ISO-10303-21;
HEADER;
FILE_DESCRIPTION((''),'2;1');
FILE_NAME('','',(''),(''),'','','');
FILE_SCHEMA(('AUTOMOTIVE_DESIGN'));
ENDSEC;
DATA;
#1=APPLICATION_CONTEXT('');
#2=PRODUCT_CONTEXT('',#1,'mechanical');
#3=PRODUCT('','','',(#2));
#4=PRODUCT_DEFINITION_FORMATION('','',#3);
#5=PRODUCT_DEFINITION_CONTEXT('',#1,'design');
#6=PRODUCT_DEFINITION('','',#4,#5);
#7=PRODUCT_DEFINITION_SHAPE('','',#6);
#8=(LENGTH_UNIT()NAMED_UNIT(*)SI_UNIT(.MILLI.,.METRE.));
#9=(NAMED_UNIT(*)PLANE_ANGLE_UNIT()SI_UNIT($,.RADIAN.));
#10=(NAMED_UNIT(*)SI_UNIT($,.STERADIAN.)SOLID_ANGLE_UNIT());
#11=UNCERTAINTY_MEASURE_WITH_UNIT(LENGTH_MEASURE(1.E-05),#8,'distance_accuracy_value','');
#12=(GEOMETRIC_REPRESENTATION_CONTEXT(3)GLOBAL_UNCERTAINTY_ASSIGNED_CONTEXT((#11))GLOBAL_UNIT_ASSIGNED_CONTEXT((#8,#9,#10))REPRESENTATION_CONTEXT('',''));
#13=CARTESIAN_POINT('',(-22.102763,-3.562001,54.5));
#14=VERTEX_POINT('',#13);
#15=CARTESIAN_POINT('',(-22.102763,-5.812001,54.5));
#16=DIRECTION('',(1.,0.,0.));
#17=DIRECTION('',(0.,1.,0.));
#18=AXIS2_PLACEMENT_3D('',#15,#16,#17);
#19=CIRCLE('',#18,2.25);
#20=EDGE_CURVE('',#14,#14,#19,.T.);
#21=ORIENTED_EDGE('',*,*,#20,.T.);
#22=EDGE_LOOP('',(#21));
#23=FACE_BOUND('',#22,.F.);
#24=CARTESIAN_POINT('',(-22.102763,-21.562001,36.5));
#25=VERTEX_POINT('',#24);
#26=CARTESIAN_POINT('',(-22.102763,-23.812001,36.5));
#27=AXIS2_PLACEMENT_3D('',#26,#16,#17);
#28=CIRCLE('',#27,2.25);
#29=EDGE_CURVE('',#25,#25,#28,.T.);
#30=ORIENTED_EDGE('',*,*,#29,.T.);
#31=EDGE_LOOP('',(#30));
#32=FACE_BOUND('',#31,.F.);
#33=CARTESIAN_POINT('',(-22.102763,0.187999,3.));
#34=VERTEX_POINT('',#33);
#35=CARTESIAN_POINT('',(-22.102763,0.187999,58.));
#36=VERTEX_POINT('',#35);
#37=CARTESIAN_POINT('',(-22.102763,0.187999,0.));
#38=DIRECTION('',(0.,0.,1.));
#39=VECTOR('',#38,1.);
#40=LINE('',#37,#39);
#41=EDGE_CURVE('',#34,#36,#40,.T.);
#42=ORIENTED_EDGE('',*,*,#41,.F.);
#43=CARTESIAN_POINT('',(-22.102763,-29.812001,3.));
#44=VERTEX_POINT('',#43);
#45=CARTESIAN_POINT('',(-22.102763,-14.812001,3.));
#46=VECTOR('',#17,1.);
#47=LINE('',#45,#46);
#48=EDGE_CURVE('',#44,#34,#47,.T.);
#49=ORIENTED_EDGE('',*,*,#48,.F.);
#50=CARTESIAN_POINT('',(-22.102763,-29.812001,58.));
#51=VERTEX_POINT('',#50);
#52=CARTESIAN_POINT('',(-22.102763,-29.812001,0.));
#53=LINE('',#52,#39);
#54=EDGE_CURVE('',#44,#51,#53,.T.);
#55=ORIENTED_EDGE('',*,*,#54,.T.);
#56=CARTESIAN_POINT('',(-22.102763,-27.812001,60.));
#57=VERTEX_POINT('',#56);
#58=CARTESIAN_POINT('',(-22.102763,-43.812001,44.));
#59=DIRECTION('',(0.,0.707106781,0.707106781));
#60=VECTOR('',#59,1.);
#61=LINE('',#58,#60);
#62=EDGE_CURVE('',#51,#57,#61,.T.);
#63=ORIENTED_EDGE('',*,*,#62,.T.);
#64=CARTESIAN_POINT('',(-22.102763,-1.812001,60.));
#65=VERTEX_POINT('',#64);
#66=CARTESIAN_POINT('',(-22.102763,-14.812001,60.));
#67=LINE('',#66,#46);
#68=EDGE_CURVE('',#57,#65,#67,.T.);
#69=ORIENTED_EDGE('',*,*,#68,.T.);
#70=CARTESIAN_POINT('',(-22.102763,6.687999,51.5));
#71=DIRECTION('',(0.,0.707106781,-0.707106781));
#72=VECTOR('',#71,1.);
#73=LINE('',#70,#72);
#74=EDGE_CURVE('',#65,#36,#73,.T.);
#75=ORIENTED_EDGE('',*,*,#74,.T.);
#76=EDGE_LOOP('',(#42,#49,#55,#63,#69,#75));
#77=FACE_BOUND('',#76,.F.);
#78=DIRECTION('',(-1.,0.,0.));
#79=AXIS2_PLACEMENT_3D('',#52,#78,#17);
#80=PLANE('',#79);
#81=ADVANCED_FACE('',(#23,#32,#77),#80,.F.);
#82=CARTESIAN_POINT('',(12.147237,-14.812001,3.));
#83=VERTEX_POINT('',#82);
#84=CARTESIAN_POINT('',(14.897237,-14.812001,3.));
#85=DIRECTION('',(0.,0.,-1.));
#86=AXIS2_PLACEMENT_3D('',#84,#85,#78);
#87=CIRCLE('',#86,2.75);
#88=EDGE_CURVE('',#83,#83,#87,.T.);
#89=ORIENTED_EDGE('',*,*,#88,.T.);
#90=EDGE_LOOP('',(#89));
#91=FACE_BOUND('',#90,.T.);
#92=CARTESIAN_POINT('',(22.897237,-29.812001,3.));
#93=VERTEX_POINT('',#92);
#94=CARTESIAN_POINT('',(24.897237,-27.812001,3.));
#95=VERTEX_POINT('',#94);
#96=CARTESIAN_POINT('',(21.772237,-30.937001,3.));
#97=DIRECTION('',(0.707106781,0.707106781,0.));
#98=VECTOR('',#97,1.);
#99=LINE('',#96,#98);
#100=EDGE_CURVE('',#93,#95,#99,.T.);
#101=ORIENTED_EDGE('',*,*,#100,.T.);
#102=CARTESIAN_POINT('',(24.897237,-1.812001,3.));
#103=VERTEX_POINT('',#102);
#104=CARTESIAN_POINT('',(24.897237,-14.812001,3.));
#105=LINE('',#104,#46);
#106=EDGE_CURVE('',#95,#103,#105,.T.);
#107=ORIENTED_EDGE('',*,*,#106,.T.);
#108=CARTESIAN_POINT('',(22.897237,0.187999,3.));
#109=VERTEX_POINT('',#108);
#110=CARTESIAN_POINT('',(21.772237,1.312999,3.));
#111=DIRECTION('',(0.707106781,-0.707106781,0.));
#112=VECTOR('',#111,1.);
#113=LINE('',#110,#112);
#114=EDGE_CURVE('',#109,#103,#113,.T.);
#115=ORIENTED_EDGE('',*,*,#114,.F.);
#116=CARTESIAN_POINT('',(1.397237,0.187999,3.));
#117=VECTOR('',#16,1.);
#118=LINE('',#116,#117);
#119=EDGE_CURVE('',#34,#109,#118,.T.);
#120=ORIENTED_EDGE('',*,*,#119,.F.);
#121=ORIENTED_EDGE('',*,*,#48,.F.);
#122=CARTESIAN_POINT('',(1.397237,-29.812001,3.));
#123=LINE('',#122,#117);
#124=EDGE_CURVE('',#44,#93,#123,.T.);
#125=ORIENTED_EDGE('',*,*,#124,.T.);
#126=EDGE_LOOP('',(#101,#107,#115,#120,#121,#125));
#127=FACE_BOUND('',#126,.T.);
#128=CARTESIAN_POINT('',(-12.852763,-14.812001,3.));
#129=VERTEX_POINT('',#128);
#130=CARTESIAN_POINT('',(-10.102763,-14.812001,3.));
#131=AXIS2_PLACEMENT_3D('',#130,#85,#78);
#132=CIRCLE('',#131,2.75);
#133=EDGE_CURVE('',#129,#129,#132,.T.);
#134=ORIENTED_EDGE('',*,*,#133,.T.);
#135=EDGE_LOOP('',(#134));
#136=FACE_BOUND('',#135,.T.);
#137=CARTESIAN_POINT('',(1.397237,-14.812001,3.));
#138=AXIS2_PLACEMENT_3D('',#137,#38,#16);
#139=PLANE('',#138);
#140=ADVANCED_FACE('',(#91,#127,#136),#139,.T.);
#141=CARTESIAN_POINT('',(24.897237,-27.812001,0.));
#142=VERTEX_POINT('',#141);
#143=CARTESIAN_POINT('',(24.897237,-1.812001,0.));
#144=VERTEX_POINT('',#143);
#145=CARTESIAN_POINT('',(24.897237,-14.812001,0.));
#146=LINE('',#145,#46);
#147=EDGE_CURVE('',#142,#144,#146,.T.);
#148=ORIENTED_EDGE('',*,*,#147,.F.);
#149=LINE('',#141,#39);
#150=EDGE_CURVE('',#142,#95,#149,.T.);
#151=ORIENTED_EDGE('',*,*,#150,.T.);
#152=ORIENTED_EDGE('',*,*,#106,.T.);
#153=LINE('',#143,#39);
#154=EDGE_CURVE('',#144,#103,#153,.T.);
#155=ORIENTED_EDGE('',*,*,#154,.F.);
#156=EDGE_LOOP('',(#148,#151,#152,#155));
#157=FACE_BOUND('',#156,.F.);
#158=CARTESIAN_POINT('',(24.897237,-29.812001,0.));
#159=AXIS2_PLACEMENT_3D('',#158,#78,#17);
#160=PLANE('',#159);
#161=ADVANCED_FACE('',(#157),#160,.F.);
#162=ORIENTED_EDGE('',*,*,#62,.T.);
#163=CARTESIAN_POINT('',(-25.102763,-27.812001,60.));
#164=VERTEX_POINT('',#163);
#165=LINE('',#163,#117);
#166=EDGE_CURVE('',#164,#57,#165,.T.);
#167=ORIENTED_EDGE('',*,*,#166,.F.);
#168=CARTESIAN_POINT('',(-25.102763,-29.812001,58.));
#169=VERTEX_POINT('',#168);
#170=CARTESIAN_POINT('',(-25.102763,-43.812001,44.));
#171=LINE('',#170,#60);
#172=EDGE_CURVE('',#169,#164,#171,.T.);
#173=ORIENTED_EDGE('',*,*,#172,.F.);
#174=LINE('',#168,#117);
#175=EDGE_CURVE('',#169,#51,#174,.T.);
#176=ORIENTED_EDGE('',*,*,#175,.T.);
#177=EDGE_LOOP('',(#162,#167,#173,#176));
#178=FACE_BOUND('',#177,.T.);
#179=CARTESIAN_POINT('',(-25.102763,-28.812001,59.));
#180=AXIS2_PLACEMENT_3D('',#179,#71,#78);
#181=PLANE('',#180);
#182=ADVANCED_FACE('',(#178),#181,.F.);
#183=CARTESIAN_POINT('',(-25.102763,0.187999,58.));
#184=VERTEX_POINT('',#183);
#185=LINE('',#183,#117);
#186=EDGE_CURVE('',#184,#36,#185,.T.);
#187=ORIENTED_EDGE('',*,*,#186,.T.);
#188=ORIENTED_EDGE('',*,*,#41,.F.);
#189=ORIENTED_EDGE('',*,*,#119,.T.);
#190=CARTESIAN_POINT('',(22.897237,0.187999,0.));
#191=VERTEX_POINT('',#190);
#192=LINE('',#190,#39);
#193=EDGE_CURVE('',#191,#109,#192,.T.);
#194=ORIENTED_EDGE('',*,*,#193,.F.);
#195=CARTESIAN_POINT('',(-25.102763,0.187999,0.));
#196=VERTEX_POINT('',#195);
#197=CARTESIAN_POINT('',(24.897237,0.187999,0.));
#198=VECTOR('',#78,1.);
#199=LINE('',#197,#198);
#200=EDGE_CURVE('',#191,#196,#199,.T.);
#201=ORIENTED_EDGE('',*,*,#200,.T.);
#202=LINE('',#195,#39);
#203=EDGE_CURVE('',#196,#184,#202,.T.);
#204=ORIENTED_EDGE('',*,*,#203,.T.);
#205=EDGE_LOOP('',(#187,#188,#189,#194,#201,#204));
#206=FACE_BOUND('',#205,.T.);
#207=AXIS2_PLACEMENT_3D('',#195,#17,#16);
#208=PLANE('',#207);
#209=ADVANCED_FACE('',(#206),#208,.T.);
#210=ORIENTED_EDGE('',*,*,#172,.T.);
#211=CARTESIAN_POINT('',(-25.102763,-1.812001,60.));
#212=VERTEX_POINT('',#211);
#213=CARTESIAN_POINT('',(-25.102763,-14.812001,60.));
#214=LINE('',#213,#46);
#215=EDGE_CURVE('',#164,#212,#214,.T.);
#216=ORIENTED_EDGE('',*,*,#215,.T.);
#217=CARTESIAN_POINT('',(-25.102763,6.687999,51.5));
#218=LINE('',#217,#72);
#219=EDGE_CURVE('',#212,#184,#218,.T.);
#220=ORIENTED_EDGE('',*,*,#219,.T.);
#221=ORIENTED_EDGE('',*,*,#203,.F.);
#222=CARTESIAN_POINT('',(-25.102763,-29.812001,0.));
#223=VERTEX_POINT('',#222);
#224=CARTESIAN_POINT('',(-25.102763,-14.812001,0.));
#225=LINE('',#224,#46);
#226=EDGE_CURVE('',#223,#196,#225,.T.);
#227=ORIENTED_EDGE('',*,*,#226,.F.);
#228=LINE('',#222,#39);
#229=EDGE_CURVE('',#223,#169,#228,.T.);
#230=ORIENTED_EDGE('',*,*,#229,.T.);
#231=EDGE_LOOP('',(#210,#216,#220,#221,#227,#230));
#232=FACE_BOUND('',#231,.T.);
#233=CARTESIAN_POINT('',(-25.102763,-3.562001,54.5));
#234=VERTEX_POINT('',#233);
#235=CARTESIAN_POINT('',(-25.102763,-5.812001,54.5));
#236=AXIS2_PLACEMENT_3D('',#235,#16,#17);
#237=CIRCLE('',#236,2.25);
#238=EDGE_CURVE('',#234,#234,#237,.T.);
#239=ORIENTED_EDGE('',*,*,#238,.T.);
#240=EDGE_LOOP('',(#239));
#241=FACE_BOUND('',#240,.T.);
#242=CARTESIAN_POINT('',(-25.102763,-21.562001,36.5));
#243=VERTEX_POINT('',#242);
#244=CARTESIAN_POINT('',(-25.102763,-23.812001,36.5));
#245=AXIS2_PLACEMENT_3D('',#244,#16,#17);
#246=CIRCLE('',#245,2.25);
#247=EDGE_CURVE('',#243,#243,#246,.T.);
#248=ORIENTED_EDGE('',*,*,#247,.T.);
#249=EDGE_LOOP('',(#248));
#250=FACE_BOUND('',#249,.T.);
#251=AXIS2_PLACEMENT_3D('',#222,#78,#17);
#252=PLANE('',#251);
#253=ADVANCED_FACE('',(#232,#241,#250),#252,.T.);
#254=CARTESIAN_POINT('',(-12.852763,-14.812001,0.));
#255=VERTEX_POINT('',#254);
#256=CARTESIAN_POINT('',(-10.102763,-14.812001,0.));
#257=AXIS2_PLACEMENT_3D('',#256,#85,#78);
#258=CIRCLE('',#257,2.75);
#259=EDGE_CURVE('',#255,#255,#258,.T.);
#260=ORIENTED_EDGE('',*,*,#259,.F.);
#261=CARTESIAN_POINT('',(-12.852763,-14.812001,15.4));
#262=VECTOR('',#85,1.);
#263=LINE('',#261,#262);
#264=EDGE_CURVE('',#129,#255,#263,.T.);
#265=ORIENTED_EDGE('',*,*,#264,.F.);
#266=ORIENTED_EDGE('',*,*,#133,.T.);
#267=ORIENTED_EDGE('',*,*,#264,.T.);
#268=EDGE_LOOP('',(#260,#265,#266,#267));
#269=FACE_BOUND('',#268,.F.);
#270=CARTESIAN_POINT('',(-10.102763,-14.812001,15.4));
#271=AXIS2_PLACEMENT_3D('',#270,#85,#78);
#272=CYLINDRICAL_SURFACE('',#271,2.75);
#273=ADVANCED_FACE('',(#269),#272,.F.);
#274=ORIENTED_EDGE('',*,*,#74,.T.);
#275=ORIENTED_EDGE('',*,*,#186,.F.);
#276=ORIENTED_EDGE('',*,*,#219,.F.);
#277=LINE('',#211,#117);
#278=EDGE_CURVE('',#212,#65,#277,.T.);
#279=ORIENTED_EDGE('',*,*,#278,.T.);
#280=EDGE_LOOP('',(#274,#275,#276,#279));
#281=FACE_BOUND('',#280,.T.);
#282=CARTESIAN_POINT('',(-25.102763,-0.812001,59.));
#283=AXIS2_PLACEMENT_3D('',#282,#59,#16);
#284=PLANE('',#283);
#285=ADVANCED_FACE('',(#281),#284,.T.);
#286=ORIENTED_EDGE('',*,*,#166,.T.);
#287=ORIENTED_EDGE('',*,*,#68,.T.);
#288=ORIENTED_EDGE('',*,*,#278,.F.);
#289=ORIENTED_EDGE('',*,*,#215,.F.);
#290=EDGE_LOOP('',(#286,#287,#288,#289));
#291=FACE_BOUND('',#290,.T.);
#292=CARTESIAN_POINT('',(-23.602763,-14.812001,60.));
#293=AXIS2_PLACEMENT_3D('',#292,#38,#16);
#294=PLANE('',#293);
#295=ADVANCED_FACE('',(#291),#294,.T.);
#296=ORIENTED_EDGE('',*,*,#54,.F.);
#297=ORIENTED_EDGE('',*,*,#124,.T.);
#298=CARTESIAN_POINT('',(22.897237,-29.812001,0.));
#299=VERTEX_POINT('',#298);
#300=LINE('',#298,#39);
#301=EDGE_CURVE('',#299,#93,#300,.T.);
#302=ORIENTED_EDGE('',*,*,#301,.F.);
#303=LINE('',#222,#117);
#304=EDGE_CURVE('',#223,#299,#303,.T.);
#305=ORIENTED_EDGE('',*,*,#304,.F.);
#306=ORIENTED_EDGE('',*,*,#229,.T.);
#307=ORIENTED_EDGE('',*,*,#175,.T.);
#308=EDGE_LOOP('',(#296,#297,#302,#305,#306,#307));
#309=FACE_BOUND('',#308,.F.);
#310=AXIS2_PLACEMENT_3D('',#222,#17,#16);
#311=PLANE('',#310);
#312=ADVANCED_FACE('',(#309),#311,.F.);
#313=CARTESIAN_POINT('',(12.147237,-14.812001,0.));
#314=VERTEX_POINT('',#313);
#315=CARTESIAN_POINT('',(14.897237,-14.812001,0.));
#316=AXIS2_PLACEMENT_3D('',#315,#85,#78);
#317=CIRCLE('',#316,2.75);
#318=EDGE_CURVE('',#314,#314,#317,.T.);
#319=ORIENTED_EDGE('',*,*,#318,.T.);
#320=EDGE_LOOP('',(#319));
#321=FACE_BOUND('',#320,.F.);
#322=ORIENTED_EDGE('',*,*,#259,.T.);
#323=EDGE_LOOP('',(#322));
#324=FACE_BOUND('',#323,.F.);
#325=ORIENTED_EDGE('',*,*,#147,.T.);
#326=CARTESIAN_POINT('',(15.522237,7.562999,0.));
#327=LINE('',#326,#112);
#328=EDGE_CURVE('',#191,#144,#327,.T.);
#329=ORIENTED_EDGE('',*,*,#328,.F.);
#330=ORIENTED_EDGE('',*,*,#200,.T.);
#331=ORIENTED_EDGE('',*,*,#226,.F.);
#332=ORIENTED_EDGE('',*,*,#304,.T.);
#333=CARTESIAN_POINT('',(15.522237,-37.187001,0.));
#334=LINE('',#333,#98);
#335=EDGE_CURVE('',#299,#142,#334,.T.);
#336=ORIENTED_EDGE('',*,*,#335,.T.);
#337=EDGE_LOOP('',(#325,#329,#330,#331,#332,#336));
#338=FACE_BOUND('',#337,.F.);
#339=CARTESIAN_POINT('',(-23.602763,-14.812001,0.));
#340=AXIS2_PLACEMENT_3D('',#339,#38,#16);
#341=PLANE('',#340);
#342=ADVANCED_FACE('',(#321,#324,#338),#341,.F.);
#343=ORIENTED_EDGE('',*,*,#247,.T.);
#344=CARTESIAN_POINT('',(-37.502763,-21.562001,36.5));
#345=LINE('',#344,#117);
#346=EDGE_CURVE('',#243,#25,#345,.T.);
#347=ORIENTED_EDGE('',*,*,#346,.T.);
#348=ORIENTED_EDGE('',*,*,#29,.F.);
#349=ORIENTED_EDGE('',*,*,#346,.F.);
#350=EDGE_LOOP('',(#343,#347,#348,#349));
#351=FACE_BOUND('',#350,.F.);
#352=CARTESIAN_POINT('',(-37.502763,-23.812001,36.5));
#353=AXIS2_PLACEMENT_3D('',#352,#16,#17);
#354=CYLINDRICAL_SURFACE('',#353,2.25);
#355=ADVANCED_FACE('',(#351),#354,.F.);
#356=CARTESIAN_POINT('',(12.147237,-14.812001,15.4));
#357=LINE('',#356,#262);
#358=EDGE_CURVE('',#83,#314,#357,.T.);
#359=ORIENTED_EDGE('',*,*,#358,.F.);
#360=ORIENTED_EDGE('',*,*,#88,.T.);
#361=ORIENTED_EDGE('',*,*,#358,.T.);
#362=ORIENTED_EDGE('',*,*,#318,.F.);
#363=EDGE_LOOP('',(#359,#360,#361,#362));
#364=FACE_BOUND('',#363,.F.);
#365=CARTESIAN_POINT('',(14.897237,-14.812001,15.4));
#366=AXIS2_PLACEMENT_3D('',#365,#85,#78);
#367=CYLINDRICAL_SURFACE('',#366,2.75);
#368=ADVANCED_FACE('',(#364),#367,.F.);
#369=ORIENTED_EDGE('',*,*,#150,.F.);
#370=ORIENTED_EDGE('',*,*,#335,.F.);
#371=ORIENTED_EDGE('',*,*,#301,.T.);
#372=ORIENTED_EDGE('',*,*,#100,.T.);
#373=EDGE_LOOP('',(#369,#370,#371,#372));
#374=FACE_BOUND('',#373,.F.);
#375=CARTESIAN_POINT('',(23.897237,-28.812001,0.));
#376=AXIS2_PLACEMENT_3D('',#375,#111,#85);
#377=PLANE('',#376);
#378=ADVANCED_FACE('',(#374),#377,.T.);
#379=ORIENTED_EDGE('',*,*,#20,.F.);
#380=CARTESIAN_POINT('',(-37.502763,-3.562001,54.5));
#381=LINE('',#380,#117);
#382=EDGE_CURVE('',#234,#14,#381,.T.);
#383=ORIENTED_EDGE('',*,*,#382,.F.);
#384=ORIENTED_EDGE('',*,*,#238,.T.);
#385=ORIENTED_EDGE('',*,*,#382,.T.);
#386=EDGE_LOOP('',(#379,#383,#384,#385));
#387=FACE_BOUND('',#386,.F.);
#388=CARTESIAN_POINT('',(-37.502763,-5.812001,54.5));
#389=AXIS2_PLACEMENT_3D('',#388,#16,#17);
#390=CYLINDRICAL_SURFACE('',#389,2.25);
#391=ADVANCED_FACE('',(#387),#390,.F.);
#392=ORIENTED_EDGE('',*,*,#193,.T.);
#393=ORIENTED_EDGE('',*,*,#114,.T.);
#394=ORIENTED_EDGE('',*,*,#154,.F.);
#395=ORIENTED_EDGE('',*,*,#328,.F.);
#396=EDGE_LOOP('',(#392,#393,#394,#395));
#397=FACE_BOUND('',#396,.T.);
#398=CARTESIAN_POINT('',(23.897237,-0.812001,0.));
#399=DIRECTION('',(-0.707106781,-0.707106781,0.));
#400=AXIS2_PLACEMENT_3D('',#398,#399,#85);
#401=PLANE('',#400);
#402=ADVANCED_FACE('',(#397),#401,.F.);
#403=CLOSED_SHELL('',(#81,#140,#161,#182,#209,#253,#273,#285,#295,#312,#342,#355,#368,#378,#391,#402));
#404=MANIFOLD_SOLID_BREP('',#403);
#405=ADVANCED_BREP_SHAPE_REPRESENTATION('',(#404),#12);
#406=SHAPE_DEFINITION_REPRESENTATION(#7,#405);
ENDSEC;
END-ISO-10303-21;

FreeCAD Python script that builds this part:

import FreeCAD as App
import Part
import Sketcher

V = App.Vector


def edges_at(feature, points):
    """Names of the edges that pass closest to the given points."""
    edges = feature.Shape.Edges
    near = lambda p: min(range(len(edges)), key=lambda i: edges[i].distToShape(Part.Vertex(*p))[0])
    return sorted({f"Edge{near(p) + 1}" for p in points})


def add_polygon(sketch, points):
    """Adds a closed chain of lines whose ends are joined by coincident constraints."""
    first, n = sketch.GeometryCount, len(points)
    for a, b in zip(points, points[1:] + points[:1]):
        sketch.addGeometry(Part.LineSegment(App.Vector(*a, 0), App.Vector(*b, 0)), False)
    for i in range(n):
        sketch.addConstraint(Sketcher.Constraint("Coincident", first + i, 2, first + (i + 1) % n, 1))

doc = App.newDocument("Part")
body = doc.addObject("PartDesign::Body", "Body")

sketch1 = doc.addObject("Sketcher::SketchObject", "Sketch")
body.addObject(sketch1)
sketch1.AttachmentSupport = (doc.XY_Plane, [""])
sketch1.MapMode = "FlatFace"
add_polygon(sketch1, [(-22, 0), (-22, -30), (25, -30), (25, 0)])
sketch1.addConstraint(Sketcher.Constraint("Vertical", 0))
sketch1.addConstraint(Sketcher.Constraint("Horizontal", 1))
sketch1.addConstraint(Sketcher.Constraint("Vertical", 2))
sketch1.addConstraint(Sketcher.Constraint("Horizontal", 3))
sketch1.addConstraint(Sketcher.Constraint("DistanceX", 1, 1, 1, 2, 47.0))
sketch1.addConstraint(Sketcher.Constraint("DistanceY", 0, 2, 0, 1, 30.0))
sketch1.addConstraint(Sketcher.Constraint("DistanceY", 0, 2, -1, 1, 29.812001))
sketch1.addConstraint(Sketcher.Constraint("DistanceX", 0, 2, -1, 1, 22.102763))
pad1 = doc.addObject("PartDesign::Pad", "Pad")
body.addObject(pad1)
pad1.Profile = sketch1
pad1.Length = 3

sketch2 = doc.addObject("Sketcher::SketchObject", "Sketch001")
body.addObject(sketch2)
sketch2.AttachmentSupport = (doc.XY_Plane, [""])
sketch2.MapMode = "FlatFace"
add_polygon(sketch2, [(-25.1, 0.2), (-25.1, -29.8), (-22.1, -29.8), (-22.1, 0.2)])
sketch2.addConstraint(Sketcher.Constraint("Vertical", 0))
sketch2.addConstraint(Sketcher.Constraint("Horizontal", 1))
sketch2.addConstraint(Sketcher.Constraint("Vertical", 2))
sketch2.addConstraint(Sketcher.Constraint("Horizontal", 3))
sketch2.addConstraint(Sketcher.Constraint("DistanceX", 1, 1, 1, 2, 3.0))
sketch2.addConstraint(Sketcher.Constraint("DistanceY", 0, 2, 0, 1, 30.0))
sketch2.addConstraint(Sketcher.Constraint("DistanceY", 0, 2, -1, 1, 29.812001))
sketch2.addConstraint(Sketcher.Constraint("DistanceX", 0, 2, -1, 1, 25.102763))
pad2 = doc.addObject("PartDesign::Pad", "Pad001")
body.addObject(pad2)
pad2.Profile = sketch2
pad2.Length = 60

sketch3 = doc.addObject("Sketcher::SketchObject", "Sketch002")
body.addObject(sketch3)
sketch3.AttachmentSupport = (doc.YZ_Plane, [""])
sketch3.MapMode = "FlatFace"
sketch3.AttachmentOffset = App.Placement(V(0, 0, -25.102763), App.Rotation())
sketch3.addGeometry(Part.Circle(V(-5.8, 54.5, 0), V(0, 0, 1), 2.2), False)
sketch3.addGeometry(Part.Circle(V(-23.8, 36.5, 0), V(0, 0, 1), 2.2), False)
sketch3.addConstraint(Sketcher.Constraint("Equal", 0, 1))
sketch3.addConstraint(Sketcher.Constraint("Diameter", 0, 4.5))
sketch3.addConstraint(Sketcher.Constraint("DistanceX", 1, 3, 0, 3, 18.0))
sketch3.addConstraint(Sketcher.Constraint("DistanceY", 1, 3, 0, 3, 18.0))
sketch3.addConstraint(Sketcher.Constraint("DistanceY", -1, 1, 0, 3, 54.5))
sketch3.addConstraint(Sketcher.Constraint("DistanceX", 0, 3, -1, 1, 5.812001))
doc.recompute()
hole = doc.addObject("PartDesign::Hole", "Hole")
body.addObject(hole)
hole.Profile = sketch3
hole.ThreadType = "None"
hole.Diameter = 4.5
hole.DepthType = "Dimension"
hole.Depth = 12.4
hole.DrillPoint = "Flat"
hole.Reversed = True

sketch4 = doc.addObject("Sketcher::SketchObject", "Sketch003")
body.addObject(sketch4)
sketch4.AttachmentSupport = (doc.XY_Plane, [""])
sketch4.MapMode = "FlatFace"
sketch4.AttachmentOffset = App.Placement(V(0, 0, 3), App.Rotation())
sketch4.addGeometry(Part.Circle(V(-10.1, -14.8, 0), V(0, 0, 1), 2.8), False)
sketch4.addGeometry(Part.Circle(V(14.9, -14.8, 0), V(0, 0, 1), 2.8), False)
sketch4.addConstraint(Sketcher.Constraint("Equal", 0, 1))
sketch4.addConstraint(Sketcher.Constraint("Horizontal", 0, 3, 1, 3))
sketch4.addConstraint(Sketcher.Constraint("Diameter", 0, 5.5))
sketch4.addConstraint(Sketcher.Constraint("DistanceX", 0, 3, 1, 3, 25.0))
sketch4.addConstraint(Sketcher.Constraint("DistanceY", 0, 3, -1, 1, 14.812001))
sketch4.addConstraint(Sketcher.Constraint("DistanceX", 0, 3, -1, 1, 10.102763))
doc.recompute()
hole2 = doc.addObject("PartDesign::Hole", "Hole001")
body.addObject(hole2)
hole2.Profile = sketch4
hole2.ThreadType = "None"
hole2.Diameter = 5.5
hole2.DepthType = "Dimension"
hole2.Depth = 12.4
hole2.DrillPoint = "Flat"
doc.recompute()

chamfer = doc.addObject("PartDesign::Chamfer", "Chamfer")
body.addObject(chamfer)
chamfer.Base = (hole2, edges_at(hole2, [
    (-23.603, -29.812, 60),
    (-23.603, 0.188, 60),
    (24.897, -29.812, 1.5),
    (24.897, 0.188, 1.5),
]))
chamfer.Size = 2

doc.recompute()
